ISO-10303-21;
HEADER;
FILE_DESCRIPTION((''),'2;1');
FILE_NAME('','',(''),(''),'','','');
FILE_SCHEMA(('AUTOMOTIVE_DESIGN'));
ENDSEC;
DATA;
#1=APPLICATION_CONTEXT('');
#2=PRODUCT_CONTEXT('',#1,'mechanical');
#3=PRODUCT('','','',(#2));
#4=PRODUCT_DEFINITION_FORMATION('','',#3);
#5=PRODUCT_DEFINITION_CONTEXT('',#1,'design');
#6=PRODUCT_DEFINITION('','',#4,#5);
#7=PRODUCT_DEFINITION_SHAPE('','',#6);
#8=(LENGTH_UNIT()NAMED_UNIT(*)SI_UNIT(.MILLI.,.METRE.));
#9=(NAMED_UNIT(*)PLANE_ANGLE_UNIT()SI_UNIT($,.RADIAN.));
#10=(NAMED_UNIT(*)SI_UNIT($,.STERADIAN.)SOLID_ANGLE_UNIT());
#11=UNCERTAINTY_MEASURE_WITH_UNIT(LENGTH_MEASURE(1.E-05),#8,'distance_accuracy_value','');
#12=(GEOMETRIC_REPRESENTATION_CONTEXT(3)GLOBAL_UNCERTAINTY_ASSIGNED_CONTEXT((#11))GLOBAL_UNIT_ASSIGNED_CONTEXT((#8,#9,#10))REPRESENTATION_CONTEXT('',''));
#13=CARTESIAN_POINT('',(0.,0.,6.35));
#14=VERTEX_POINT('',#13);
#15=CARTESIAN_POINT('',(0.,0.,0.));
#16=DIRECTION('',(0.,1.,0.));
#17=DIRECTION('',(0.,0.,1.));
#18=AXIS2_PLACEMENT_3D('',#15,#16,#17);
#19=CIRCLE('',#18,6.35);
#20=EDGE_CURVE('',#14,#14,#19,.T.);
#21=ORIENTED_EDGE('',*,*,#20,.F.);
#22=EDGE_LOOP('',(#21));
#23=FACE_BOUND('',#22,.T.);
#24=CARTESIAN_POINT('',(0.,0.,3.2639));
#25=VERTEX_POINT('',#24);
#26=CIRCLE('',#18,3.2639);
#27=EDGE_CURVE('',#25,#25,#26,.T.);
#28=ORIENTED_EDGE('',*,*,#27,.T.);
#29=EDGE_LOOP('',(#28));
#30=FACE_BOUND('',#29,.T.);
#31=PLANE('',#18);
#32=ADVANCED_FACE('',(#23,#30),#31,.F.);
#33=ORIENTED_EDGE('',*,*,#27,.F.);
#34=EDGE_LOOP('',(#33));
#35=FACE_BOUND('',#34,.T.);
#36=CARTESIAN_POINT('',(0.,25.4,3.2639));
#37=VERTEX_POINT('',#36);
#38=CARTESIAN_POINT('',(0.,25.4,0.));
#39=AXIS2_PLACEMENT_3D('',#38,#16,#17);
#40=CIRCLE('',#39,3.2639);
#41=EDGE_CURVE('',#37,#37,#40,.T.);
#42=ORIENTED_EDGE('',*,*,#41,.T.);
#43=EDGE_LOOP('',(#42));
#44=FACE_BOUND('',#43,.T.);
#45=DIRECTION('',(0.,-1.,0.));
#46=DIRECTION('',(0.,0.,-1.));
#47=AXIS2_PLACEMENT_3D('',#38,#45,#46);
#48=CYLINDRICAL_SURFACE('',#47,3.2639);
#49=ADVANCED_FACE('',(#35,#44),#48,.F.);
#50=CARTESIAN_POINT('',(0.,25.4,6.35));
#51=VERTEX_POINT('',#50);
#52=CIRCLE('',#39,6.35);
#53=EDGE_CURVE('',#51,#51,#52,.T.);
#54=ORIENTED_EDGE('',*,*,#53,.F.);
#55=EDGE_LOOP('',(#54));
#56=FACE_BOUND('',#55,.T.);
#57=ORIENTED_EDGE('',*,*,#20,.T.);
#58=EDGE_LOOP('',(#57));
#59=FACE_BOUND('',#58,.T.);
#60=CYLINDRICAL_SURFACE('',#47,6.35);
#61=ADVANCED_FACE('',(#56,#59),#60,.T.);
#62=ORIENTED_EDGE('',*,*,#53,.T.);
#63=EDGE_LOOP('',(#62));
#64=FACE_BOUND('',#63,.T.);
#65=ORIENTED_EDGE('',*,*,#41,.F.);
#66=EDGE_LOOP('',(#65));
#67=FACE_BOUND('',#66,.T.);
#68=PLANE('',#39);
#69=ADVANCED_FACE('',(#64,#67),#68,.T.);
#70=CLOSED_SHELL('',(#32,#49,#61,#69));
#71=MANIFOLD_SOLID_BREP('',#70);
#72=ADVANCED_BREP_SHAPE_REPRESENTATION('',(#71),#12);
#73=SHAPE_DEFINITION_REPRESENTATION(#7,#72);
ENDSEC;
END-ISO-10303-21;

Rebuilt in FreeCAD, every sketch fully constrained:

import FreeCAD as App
import Part
import Sketcher
from FreeCAD import Vector
Q = App.Units.Quantity

doc = App.newDocument("Part")
body = doc.addObject("PartDesign::Body", "Body")

# Sketch on XZ plane
sketch1 = body.newObject("Sketcher::SketchObject", "Sketch")
sketch1.AttachmentSupport = (doc.getObject("XZ_Plane"), [""])
sketch1.MapMode = "FlatFace"
sketch1.addGeometry([
    Part.Circle(Vector(0, 0, 0), Vector(0, 0, 1), 6.3),
    Part.Circle(Vector(0, 0, 0), Vector(0, 0, 1), 3.3),
], False)
sketch1.addConstraint([
    Sketcher.Constraint("Coincident", 0, 3, -1, 1),
    Sketcher.Constraint("Coincident", 1, 3, -1, 1),
    Sketcher.Constraint("Diameter", 0, Q("0.5 in")),
    Sketcher.Constraint("Diameter", 1, Q("0.257 in")),
])
pad1 = body.newObject("PartDesign::Pad", "Pad")
pad1.Profile = sketch1
pad1.Length = Q("1 in")
pad1.Reversed = True

doc.recompute()
